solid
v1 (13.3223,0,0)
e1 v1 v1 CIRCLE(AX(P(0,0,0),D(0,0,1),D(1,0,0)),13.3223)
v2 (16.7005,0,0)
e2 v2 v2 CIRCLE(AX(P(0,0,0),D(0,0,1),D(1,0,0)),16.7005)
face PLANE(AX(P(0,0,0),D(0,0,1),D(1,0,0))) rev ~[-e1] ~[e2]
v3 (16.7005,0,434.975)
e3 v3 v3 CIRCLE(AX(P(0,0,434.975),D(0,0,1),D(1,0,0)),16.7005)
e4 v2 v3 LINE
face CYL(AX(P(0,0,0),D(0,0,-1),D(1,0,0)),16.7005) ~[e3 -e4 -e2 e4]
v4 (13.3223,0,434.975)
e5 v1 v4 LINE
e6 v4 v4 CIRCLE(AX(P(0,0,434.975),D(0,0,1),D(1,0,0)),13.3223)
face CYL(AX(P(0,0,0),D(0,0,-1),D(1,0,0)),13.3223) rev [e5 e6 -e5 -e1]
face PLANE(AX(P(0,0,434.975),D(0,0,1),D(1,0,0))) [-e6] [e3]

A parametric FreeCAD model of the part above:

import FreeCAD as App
import Part
import Sketcher

V = App.Vector
Q = App.Units.Quantity

doc = App.newDocument("Part")
body = doc.addObject("PartDesign::Body", "Body")

# Sketch on XY plane
sketch1 = body.newObject("Sketcher::SketchObject", "Sketch")
sketch1.AttachmentSupport = (doc.getObject("XY_Plane"), [""])
sketch1.MapMode = "FlatFace"
sketch1.addGeometry(Part.Circle(V(0, 0, 0), V(0, 0, 1), 16.7005), False)
sketch1.addGeometry(Part.Circle(V(0, 0, 0), V(0, 0, 1), 13.3223), False)
sketch1.addConstraint(Sketcher.Constraint("Coincident", 0, 3, -1, 1))
sketch1.addConstraint(Sketcher.Constraint("Coincident", 1, 3, -1, 1))
sketch1.addConstraint(Sketcher.Constraint("Diameter", 0, Q("1.315 in")))
sketch1.addConstraint(Sketcher.Constraint("Diameter", 1, Q("1.049 in")))
pad1 = body.newObject("PartDesign::Pad", "Pad")
pad1.Profile = sketch1
pad1.Length = Q("17.125 in")

doc.recompute()
